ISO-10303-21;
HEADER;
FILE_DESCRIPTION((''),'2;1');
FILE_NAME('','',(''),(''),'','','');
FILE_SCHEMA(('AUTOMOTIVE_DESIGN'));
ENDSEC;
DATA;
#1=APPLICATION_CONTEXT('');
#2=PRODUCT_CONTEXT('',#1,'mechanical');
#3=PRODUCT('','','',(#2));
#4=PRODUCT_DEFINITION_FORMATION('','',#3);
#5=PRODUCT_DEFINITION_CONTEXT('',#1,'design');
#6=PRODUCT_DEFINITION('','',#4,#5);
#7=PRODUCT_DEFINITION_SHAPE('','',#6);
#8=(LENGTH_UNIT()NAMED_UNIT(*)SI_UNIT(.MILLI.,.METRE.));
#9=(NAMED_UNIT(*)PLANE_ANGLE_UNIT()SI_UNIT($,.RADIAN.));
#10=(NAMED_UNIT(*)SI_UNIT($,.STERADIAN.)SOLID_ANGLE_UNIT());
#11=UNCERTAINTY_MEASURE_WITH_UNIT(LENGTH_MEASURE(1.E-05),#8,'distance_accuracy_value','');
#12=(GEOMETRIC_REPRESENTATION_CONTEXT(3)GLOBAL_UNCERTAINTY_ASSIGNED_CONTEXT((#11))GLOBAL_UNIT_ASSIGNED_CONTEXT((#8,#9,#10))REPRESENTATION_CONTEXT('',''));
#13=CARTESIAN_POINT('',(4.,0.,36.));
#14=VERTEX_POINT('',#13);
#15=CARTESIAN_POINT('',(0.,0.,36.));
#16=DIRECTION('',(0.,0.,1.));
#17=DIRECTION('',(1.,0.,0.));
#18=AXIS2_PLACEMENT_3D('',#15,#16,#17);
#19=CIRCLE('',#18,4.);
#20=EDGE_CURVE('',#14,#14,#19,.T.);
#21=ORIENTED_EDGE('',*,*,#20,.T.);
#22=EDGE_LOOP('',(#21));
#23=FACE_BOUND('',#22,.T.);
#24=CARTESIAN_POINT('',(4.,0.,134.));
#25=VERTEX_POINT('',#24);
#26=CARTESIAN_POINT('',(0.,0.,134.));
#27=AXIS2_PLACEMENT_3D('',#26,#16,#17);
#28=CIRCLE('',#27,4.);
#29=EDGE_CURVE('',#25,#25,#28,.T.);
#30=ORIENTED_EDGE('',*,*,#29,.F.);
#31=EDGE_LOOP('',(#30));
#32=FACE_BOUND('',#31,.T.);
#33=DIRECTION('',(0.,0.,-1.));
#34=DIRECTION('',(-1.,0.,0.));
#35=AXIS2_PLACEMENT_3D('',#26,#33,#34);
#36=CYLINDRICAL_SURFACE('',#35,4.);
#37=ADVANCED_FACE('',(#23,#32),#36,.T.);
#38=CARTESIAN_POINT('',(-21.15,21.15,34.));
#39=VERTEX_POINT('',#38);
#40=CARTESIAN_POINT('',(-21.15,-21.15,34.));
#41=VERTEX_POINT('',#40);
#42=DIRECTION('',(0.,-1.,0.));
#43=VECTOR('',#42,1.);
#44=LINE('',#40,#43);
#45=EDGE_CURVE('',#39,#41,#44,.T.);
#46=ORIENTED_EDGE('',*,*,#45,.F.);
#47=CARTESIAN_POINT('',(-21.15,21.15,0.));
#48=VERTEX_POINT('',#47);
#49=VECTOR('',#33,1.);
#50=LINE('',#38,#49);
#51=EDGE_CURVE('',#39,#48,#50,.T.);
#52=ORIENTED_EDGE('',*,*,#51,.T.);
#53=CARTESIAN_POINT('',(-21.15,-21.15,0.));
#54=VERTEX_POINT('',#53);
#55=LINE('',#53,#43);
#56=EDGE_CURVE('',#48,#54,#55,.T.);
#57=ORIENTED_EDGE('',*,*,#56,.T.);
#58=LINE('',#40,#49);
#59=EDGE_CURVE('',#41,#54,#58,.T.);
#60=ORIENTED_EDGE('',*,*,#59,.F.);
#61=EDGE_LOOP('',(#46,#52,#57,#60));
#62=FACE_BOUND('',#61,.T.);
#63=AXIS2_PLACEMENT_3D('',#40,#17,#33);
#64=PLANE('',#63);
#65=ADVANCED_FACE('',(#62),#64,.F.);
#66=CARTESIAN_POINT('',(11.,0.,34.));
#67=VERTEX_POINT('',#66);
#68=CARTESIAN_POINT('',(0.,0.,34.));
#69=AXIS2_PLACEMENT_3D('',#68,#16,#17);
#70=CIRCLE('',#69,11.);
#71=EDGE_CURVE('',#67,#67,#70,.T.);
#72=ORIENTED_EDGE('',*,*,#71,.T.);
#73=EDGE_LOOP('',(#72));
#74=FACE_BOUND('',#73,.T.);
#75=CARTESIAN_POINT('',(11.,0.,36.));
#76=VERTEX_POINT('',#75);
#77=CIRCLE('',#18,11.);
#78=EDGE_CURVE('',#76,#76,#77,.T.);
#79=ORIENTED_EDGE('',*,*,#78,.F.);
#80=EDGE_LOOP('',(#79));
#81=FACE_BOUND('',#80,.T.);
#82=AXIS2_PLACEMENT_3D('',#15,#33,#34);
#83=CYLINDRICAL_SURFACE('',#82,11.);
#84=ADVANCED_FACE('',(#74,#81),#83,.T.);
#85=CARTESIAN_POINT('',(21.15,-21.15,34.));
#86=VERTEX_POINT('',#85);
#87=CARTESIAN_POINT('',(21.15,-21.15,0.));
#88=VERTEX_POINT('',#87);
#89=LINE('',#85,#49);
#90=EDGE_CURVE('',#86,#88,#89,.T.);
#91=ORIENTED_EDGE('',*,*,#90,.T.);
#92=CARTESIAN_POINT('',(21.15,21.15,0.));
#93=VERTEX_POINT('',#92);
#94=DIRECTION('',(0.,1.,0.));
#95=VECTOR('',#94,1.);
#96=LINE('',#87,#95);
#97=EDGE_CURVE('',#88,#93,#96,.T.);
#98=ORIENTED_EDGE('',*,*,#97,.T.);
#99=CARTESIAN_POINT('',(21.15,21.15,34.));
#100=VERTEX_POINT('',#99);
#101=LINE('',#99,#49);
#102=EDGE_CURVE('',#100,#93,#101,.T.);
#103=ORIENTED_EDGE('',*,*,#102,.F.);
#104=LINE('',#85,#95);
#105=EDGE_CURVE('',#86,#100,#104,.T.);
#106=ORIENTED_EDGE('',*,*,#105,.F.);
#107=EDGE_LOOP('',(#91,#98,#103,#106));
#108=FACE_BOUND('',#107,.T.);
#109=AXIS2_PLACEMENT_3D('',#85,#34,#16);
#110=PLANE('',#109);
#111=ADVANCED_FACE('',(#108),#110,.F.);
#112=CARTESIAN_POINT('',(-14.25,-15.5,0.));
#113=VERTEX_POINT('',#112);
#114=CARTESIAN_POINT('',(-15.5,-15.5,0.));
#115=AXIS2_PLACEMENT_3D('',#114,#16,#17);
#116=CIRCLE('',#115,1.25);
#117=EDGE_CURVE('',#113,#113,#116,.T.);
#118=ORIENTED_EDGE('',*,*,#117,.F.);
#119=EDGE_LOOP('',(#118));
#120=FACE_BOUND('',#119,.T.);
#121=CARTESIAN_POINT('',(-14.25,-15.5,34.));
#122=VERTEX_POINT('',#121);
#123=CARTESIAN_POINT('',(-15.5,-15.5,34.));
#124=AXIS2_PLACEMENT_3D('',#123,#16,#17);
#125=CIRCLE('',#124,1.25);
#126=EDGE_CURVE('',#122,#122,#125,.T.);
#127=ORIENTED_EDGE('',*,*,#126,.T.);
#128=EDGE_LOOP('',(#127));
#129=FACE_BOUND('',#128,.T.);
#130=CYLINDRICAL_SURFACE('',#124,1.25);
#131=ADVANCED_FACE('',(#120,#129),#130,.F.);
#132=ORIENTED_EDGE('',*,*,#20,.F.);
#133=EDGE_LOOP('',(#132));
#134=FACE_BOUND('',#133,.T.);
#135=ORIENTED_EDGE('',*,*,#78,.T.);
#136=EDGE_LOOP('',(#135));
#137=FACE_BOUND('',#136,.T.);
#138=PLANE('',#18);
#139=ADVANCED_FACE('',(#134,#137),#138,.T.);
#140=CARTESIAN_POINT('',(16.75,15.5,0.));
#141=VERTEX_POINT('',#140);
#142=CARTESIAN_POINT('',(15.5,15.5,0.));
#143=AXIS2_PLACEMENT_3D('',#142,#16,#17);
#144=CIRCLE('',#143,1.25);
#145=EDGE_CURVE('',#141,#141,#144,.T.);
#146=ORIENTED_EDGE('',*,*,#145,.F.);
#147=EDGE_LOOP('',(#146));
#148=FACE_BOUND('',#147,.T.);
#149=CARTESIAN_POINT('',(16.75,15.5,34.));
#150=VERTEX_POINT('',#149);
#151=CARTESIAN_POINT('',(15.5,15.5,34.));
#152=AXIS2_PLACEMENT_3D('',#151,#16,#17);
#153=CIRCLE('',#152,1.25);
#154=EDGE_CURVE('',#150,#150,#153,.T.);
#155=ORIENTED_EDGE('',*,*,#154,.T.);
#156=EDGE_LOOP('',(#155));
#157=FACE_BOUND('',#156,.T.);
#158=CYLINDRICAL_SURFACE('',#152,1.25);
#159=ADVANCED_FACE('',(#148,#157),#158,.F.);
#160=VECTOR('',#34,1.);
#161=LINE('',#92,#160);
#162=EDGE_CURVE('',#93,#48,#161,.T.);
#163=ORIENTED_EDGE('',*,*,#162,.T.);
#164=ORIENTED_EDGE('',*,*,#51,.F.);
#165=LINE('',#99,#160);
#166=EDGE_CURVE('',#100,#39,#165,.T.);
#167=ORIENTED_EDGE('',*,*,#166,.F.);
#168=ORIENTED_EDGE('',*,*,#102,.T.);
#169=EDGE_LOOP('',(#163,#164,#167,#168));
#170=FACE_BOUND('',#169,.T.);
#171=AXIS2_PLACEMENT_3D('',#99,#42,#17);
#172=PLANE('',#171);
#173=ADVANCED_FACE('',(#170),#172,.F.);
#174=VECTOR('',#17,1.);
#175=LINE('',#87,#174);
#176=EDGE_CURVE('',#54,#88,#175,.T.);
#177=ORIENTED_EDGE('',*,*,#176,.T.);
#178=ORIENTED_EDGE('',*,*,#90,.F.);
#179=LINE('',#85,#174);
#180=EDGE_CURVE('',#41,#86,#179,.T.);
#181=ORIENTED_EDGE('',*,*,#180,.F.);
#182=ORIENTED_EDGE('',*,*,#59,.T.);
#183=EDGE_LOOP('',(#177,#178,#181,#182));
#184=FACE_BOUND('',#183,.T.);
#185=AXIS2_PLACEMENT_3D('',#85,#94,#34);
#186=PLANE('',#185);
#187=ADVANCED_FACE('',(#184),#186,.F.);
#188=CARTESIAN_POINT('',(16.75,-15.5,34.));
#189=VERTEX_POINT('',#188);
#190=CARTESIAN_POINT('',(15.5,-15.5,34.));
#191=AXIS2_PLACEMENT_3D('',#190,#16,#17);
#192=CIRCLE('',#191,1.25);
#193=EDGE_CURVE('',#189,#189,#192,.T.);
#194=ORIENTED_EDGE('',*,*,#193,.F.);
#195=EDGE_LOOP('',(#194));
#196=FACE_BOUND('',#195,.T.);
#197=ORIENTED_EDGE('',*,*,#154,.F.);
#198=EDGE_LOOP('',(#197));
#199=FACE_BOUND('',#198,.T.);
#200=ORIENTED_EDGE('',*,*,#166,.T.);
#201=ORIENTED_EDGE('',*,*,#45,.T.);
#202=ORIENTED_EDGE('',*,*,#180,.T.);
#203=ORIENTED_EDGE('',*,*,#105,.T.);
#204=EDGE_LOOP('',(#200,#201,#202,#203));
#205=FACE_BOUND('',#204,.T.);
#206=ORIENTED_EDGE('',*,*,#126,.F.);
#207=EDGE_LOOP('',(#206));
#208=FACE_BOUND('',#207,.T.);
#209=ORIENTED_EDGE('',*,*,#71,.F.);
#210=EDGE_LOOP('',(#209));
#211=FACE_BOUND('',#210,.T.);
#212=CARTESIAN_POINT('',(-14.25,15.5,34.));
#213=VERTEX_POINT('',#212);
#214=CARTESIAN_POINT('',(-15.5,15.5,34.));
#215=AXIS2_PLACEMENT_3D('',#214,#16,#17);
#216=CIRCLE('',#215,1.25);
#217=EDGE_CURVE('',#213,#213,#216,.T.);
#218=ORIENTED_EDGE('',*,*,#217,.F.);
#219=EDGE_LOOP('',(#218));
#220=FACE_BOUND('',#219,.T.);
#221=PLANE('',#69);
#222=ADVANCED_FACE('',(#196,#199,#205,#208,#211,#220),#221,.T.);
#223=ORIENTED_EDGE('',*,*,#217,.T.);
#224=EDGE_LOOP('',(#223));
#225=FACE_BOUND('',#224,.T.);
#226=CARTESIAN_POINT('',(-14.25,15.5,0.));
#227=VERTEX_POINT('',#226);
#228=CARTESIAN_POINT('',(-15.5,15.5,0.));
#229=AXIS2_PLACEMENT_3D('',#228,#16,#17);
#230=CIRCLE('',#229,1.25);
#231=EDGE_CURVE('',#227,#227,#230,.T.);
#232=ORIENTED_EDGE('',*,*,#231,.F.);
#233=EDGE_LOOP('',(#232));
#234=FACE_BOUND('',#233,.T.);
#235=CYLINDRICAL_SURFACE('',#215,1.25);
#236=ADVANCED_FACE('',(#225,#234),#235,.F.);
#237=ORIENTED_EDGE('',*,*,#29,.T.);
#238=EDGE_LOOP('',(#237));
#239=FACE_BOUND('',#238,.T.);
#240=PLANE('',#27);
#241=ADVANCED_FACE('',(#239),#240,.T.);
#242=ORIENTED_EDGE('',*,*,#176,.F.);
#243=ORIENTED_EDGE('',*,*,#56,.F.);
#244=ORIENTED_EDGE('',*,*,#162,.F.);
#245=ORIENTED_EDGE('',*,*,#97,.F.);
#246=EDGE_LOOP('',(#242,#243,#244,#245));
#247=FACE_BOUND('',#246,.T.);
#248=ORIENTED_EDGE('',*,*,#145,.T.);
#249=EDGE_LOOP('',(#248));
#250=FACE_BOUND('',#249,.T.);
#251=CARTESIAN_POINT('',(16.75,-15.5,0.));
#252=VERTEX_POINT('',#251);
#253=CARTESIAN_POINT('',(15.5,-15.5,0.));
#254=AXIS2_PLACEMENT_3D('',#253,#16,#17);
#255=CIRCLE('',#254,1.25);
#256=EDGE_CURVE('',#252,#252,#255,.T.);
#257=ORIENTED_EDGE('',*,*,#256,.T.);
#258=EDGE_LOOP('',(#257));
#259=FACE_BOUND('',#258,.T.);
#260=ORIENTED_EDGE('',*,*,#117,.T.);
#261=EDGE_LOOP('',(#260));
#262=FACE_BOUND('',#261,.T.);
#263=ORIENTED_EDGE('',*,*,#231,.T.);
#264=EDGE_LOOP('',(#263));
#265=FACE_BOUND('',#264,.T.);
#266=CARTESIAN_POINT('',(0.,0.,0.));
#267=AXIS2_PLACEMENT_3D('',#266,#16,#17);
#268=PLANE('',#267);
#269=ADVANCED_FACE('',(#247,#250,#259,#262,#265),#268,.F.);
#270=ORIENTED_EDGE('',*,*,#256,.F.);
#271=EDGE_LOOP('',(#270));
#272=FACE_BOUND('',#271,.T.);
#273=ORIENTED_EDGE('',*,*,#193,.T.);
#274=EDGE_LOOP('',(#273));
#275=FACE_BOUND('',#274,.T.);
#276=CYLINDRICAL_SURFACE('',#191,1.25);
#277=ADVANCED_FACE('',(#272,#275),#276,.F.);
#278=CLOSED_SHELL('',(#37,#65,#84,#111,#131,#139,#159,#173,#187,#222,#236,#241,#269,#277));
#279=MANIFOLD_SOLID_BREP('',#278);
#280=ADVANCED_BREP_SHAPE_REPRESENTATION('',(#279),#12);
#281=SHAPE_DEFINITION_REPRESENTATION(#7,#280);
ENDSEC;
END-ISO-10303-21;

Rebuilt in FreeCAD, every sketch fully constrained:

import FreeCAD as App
import Part
import Sketcher
Q = App.Units.Quantity


def add_polygon(sketch, points):
    """Adds a closed chain of lines whose ends are joined by coincident constraints."""
    first, n = sketch.GeometryCount, len(points)
    for a, b in zip(points, points[1:] + points[:1]):
        sketch.addGeometry(Part.LineSegment(App.Vector(*a, 0), App.Vector(*b, 0)), False)
    for i in range(n):
        sketch.addConstraint(Sketcher.Constraint("Coincident", first + i, 2, first + (i + 1) % n, 1))

doc = App.newDocument("Part")
body = doc.addObject("PartDesign::Body", "Body")

sketch1 = body.newObject("Sketcher::SketchObject", "Sketch")
sketch1.AttachmentSupport = (doc.getObject("XY_Plane"), [""])
sketch1.MapMode = "FlatFace"
add_polygon(sketch1, [(-21, 21), (-21, -21), (21, -21), (21, 21)])
sketch1.addConstraint([
    Sketcher.Constraint("Vertical", 0),
    Sketcher.Constraint("Horizontal", 1),
    Sketcher.Constraint("Vertical", 2),
    Sketcher.Constraint("Horizontal", 3),
    Sketcher.Constraint("Symmetric", 0, 2, 2, 2, -1, 1),
    Sketcher.Constraint("Equal", 3, 0),
    Sketcher.Constraint("DistanceX", 1, 1, 1, 2, Q("42.3 mm")),
])
pad1 = body.newObject("PartDesign::Pad", "Pad")
pad1.Profile = sketch1
pad1.Length = 34

sketch2 = body.newObject("Sketcher::SketchObject", "Sketch001")
sketch2.AttachmentSupport = (doc.getObject("XY_Plane"), [""])
sketch2.MapMode = "FlatFace"
sketch2.AttachmentOffset = App.Placement(App.Vector(0, 0, 34), App.Rotation())
sketch2.addGeometry(Part.Circle(App.Vector(0, 0, 0), App.Vector(0, 0, 1), 11), False)
sketch2.addConstraint([
    Sketcher.Constraint("Coincident", 0, 3, -1, 1),
    Sketcher.Constraint("Diameter", 0, Q("22 mm")),
])
pad2 = body.newObject("PartDesign::Pad", "Pad001")
pad2.Profile = sketch2
pad2.Length = 2

sketch3 = body.newObject("Sketcher::SketchObject", "Sketch002")
sketch3.AttachmentSupport = (doc.getObject("XY_Plane"), [""])
sketch3.MapMode = "FlatFace"
sketch3.AttachmentOffset = App.Placement(App.Vector(0, 0, 36), App.Rotation())
sketch3.addGeometry(Part.Circle(App.Vector(0, 0, 0), App.Vector(0, 0, 1), 4), False)
sketch3.addConstraint([
    Sketcher.Constraint("Coincident", 0, 3, -1, 1),
    Sketcher.Constraint("Diameter", 0, Q("8 mm")),
])
pad3 = body.newObject("PartDesign::Pad", "Pad002")
pad3.Profile = sketch3
pad3.Length = 98

sketch4 = body.newObject("Sketcher::SketchObject", "Sketch003")
sketch4.AttachmentSupport = (doc.getObject("XY_Plane"), [""])
sketch4.MapMode = "FlatFace"
sketch4.AttachmentOffset = App.Placement(App.Vector(0, 0, 34), App.Rotation())
sketch4.addGeometry([
    Part.Circle(App.Vector(-15.5, 15.5, 0), App.Vector(0, 0, 1), 1.2),
    Part.Circle(App.Vector(15.5, 15.5, 0), App.Vector(0, 0, 1), 1.2),
    Part.Circle(App.Vector(15.5, -15.5, 0), App.Vector(0, 0, 1), 1.2),
    Part.Circle(App.Vector(-15.5, -15.5, 0), App.Vector(0, 0, 1), 1.2),
], False)
sketch4.addConstraint([
    Sketcher.Constraint("Equal", 0, 1),
    Sketcher.Constraint("Equal", 1, 2),
    Sketcher.Constraint("Equal", 2, 3),
    Sketcher.Constraint("Symmetric", 0, 3, 2, 3, -1, 1),
    Sketcher.Constraint("Symmetric", 1, 3, 3, 3, -1, 1),
    Sketcher.Constraint("Symmetric", 0, 3, 1, 3, -2),
    Sketcher.Constraint("Diameter", 0, Q("2.5 mm")),
    Sketcher.Constraint("DistanceX", 0, 3, 1, 3, Q("31 mm")),
    Sketcher.Constraint("DistanceY", 2, 3, 1, 3, Q("31 mm")),
])
doc.recompute()
hole = body.newObject("PartDesign::Hole", "Hole")
hole.Profile = sketch4
hole.ThreadType = "None"
hole.Diameter = 2.5
hole.DepthType = "ThroughAll"

doc.recompute()
